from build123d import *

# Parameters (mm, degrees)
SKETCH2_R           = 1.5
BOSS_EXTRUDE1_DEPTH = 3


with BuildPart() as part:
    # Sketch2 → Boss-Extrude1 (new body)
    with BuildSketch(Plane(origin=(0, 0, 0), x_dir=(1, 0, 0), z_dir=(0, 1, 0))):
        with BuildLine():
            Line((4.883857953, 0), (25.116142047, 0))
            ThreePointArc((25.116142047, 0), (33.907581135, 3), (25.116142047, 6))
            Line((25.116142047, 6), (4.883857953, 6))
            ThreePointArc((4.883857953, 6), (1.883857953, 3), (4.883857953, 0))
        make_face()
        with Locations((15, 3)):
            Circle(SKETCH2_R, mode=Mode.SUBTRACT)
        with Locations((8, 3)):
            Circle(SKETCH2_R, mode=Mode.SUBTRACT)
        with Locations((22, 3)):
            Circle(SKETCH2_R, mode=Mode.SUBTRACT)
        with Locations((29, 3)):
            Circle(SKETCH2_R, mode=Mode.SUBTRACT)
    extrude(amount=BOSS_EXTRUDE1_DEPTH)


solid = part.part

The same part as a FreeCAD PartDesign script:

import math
import FreeCAD as App
import Part
import Sketcher
from FreeCAD import Vector
Q = App.Units.Quantity

doc = App.newDocument("Part")
body = doc.addObject("PartDesign::Body", "Body")

sketch1 = body.newObject("Sketcher::SketchObject", "Sketch")
sketch1.AttachmentSupport = (doc.getObject("XZ_Plane"), [""])
sketch1.MapMode = "FlatFace"
sketch1.addGeometry(Part.LineSegment(Vector(4.883858, 0, 0), Vector(25.116142, 0, 0)), False)
sketch1.addGeometry(Part.ArcOfCircle(Part.Circle(Vector(29, -3, 0), Vector(0, 0, 1), 4.907581), math.radians(-142.316503), math.radians(142.316503)), False)
sketch1.addGeometry(Part.LineSegment(Vector(25.116142, -6, 0), Vector(4.883858, -6, 0)), False)
sketch1.addGeometry(Part.ArcOfCircle(Part.Circle(Vector(4.883858, -3, 0), Vector(0, 0, 1), 3), math.radians(90), math.radians(270)), False)
sketch1.addGeometry(Part.Circle(Vector(8, -3, 0), Vector(0, 0, 1), 1.5), False)
sketch1.addGeometry(Part.Circle(Vector(15, -3, 0), Vector(0, 0, 1), 1.5), False)
sketch1.addGeometry(Part.Circle(Vector(22, -3, 0), Vector(0, 0, 1), 1.5), False)
sketch1.addGeometry(Part.Circle(Vector(29, -3, 0), Vector(0, 0, 1), 1.5), False)
sketch1.addConstraint(Sketcher.Constraint("Coincident", 0, 2, 1, 2))
sketch1.addConstraint(Sketcher.Constraint("Coincident", 1, 1, 2, 1))
sketch1.addConstraint(Sketcher.Constraint("Tangent", 2, 2, 3, 2))
sketch1.addConstraint(Sketcher.Constraint("Tangent", 3, 1, 0, 1))
sketch1.addConstraint(Sketcher.Constraint("Horizontal", 0))
sketch1.addConstraint(Sketcher.Constraint("Horizontal", 2))
sketch1.addConstraint(Sketcher.Constraint("Coincident", 7, 3, 1, 3))
sketch1.addConstraint(Sketcher.Constraint("Equal", 4, 5))
sketch1.addConstraint(Sketcher.Constraint("Equal", 5, 6))
sketch1.addConstraint(Sketcher.Constraint("Equal", 6, 7))
sketch1.addConstraint(Sketcher.Constraint("PointOnObject", 0, 2, -1))
sketch1.addConstraint(Sketcher.Constraint("Horizontal", 1, 3, 3, 3))
sketch1.addConstraint(Sketcher.Constraint("Horizontal", 3, 3, 4, 3))
sketch1.addConstraint(Sketcher.Constraint("Horizontal", 4, 3, 5, 3))
sketch1.addConstraint(Sketcher.Constraint("Horizontal", 5, 3, 6, 3))
sketch1.addConstraint(Sketcher.Constraint("Diameter", 4, Q("3 mm")))
sketch1.addConstraint(Sketcher.Constraint("Radius", 3, Q("3 mm")))
sketch1.addConstraint(Sketcher.Constraint("DistanceX", -1, 1, 1, 3, Q("29 mm")))
sketch1.addConstraint(Sketcher.Constraint("DistanceX", -1, 1, 4, 3, Q("8 mm")))
sketch1.addConstraint(Sketcher.Constraint("DistanceX", -1, 1, 5, 3, Q("15 mm")))
sketch1.addConstraint(Sketcher.Constraint("DistanceX", -1, 1, 6, 3, Q("22 mm")))
sketch1.addConstraint(Sketcher.Constraint("Radius", 1, Q("4.907581 mm")))
sketch1.addConstraint(Sketcher.Constraint("DistanceX", 0, 1, 0, 2, Q("20.232284 mm")))
pad1 = body.newObject("PartDesign::Pad", "Pad")
pad1.Profile = sketch1
pad1.Length = 3
pad1.Reversed = True

doc.recompute()
